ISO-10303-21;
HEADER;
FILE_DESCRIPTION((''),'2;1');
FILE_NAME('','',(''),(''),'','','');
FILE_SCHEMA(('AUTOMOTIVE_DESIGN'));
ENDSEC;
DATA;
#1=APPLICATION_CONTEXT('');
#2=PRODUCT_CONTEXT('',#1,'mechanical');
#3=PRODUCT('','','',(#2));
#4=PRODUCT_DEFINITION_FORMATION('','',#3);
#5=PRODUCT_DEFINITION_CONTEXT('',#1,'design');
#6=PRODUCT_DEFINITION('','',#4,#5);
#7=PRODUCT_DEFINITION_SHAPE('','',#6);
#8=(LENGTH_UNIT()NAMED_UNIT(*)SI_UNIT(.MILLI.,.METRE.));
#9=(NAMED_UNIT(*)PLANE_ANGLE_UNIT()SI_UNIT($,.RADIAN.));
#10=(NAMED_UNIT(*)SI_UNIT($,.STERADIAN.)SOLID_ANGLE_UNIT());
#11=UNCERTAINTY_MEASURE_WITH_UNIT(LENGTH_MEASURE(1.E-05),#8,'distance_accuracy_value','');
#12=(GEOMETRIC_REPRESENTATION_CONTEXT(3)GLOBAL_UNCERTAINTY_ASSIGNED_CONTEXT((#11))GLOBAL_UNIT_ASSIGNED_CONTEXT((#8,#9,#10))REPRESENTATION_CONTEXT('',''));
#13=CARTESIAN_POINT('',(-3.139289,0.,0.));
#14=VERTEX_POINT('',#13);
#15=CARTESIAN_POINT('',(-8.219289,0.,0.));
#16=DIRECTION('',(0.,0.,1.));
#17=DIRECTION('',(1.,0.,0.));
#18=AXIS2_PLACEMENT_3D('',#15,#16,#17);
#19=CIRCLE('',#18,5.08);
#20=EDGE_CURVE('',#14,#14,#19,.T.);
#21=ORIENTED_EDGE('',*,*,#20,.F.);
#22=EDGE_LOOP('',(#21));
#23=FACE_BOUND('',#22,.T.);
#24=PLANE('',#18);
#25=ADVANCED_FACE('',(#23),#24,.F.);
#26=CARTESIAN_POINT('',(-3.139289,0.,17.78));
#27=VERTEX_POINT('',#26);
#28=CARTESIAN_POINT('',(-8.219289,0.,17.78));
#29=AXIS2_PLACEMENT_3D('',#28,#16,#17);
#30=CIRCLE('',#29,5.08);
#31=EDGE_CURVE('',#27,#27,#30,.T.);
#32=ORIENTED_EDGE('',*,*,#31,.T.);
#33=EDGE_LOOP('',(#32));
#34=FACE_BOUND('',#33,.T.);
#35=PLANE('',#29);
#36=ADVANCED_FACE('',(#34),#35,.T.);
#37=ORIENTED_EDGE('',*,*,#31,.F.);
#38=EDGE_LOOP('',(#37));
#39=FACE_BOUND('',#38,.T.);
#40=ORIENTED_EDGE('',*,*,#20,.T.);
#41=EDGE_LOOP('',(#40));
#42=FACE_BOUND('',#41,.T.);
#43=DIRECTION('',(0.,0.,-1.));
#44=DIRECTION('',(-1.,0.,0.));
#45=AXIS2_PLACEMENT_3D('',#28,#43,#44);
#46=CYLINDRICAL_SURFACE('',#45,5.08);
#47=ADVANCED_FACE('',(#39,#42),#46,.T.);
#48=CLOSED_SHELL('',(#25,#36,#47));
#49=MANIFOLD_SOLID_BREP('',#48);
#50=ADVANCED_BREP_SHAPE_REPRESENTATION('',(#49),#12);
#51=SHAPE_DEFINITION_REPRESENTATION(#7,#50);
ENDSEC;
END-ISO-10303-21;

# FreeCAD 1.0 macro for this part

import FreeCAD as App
import Part
import Sketcher

V = App.Vector
Q = App.Units.Quantity

doc = App.newDocument("Part")
body = doc.addObject("PartDesign::Body", "Body")

# Sketch on XY plane
sketch1 = doc.addObject("Sketcher::SketchObject", "Sketch")
body.addObject(sketch1)
sketch1.AttachmentSupport = (doc.XY_Plane, [""])
sketch1.MapMode = "FlatFace"
sketch1.addGeometry(Part.Circle(V(-8, 0, 0), V(0, 0, 1), 5), False)
sketch1.addConstraint(Sketcher.Constraint("PointOnObject", 0, 3, -1))
sketch1.addConstraint(Sketcher.Constraint("Diameter", 0, Q("0.4 in")))
sketch1.addConstraint(Sketcher.Constraint("DistanceX", 0, 3, -1, 1, 8.219289))
pad1 = doc.addObject("PartDesign::Pad", "Pad")
body.addObject(pad1)
pad1.Profile = sketch1
pad1.Length = Q("0.7 in")

doc.recompute()
